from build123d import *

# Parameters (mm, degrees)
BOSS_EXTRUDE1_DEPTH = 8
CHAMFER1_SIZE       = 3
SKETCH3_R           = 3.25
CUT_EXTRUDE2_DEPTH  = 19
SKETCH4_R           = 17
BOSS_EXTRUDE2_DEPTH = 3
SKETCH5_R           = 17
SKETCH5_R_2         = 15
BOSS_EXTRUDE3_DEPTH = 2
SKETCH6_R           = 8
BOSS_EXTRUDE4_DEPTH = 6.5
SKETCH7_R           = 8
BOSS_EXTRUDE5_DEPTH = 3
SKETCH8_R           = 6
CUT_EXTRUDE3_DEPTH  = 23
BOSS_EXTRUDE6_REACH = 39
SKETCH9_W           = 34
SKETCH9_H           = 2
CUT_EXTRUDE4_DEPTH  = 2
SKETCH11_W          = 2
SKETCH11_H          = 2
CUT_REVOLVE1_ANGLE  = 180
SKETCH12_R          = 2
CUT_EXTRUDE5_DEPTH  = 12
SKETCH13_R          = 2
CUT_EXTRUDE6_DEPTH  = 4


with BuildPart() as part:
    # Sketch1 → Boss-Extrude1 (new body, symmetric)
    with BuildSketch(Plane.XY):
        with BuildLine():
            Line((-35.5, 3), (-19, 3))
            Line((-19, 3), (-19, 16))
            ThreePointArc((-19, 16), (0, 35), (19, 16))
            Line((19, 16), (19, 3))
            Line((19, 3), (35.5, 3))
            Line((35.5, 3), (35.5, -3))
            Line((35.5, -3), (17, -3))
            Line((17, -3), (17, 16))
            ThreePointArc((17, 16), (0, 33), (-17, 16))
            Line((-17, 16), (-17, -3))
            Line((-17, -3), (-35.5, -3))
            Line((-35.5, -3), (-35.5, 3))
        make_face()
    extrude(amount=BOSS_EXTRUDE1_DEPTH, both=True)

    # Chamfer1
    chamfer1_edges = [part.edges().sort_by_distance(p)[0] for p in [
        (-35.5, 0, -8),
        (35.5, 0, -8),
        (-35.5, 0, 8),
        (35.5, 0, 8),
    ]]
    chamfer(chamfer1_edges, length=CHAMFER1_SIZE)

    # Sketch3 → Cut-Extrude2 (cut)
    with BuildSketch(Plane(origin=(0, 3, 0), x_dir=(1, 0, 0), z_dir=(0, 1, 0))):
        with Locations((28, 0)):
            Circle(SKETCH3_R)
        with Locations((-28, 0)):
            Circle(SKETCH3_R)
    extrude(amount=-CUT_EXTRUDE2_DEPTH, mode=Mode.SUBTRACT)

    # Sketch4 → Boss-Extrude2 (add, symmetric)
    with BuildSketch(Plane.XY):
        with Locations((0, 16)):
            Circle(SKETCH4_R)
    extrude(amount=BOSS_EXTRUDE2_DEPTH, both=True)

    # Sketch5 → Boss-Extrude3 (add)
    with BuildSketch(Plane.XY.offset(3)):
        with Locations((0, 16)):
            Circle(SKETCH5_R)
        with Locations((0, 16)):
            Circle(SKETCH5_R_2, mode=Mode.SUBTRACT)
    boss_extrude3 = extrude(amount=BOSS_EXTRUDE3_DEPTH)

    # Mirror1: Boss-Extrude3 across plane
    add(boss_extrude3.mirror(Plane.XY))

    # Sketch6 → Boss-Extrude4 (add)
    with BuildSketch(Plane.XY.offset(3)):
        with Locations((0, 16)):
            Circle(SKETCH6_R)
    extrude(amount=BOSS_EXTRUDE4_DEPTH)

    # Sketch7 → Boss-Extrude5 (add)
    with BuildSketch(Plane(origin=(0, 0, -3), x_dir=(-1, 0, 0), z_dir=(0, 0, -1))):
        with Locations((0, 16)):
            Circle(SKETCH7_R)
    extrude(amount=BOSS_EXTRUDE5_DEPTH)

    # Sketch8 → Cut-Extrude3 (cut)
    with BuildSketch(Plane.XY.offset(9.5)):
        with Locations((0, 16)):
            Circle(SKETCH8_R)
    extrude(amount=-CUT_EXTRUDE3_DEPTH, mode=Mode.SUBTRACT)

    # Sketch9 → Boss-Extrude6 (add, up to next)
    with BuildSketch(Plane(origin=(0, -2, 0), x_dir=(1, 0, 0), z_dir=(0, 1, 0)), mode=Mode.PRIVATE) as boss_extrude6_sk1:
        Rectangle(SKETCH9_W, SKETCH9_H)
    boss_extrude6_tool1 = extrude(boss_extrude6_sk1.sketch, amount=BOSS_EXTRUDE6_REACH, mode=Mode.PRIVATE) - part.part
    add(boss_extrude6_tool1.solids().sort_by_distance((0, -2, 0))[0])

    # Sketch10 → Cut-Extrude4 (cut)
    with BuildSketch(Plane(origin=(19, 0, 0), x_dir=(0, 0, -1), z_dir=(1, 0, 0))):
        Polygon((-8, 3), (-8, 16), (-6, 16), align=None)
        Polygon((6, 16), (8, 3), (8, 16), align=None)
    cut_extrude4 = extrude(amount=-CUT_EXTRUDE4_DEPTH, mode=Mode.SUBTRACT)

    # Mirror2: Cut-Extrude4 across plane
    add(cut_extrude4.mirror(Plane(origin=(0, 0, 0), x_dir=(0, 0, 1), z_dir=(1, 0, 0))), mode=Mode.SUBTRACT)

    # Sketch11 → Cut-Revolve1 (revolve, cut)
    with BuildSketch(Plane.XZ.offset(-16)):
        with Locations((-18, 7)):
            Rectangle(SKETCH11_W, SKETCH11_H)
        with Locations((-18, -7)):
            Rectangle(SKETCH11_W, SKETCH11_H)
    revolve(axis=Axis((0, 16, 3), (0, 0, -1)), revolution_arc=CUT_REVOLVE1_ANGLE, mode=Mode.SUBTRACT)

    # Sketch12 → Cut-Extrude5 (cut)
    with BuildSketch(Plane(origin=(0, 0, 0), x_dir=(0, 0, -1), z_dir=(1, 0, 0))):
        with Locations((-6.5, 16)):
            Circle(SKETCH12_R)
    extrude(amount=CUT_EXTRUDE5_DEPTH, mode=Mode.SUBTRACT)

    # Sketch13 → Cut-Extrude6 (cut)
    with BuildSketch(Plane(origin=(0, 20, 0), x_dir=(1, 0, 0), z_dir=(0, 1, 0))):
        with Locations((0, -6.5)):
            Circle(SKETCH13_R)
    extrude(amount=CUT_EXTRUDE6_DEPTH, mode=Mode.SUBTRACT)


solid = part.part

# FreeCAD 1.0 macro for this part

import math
import FreeCAD as App
import Part
import Sketcher
from FreeCAD import Vector
Q = App.Units.Quantity


def edges_at(feature, points):
    """Names of the edges that pass closest to the given points."""
    edges = feature.Shape.Edges
    near = lambda p: min(range(len(edges)), key=lambda i: edges[i].distToShape(Part.Vertex(*p))[0])
    return sorted({f"Edge{near(p) + 1}" for p in points})

doc = App.newDocument("Part")
body = doc.addObject("PartDesign::Body", "Body")

sketch1 = body.newObject("Sketcher::SketchObject", "Sketch")
sketch1.AttachmentSupport = (doc.getObject("XY_Plane"), [""])
sketch1.MapMode = "FlatFace"
sketch1.addGeometry([
    Part.LineSegment(Vector(-19, 3, 0), Vector(-35.5, 3, 0)),
    Part.LineSegment(Vector(-35.5, 3, 0), Vector(-35.5, -3, 0)),
    Part.LineSegment(Vector(-35.5, -3, 0), Vector(-17, -3, 0)),
    Part.LineSegment(Vector(-17, -3, 0), Vector(-17, 16, 0)),
    Part.ArcOfCircle(Part.Circle(Vector(0, 16, 0), Vector(0, 0, 1), 17), math.radians(0), math.radians(180)),
    Part.LineSegment(Vector(17, 16, 0), Vector(17, -3, 0)),
    Part.LineSegment(Vector(17, -3, 0), Vector(35.5, -3, 0)),
    Part.LineSegment(Vector(35.5, -3, 0), Vector(35.5, 3, 0)),
    Part.LineSegment(Vector(35.5, 3, 0), Vector(19, 3, 0)),
    Part.LineSegment(Vector(19, 3, 0), Vector(19, 16, 0)),
    Part.ArcOfCircle(Part.Circle(Vector(0, 16, 0), Vector(0, 0, 1), 19), math.radians(0), math.radians(180)),
    Part.LineSegment(Vector(-19, 16, 0), Vector(-19, 3, 0)),
], False)
sketch1.addConstraint([
    Sketcher.Constraint("Coincident", 0, 2, 1, 1),
    Sketcher.Constraint("Coincident", 1, 2, 2, 1),
    Sketcher.Constraint("Coincident", 2, 2, 3, 1),
    Sketcher.Constraint("Tangent", 3, 2, 4, 2),
    Sketcher.Constraint("Tangent", 4, 1, 5, 1),
    Sketcher.Constraint("Coincident", 5, 2, 6, 1),
    Sketcher.Constraint("Coincident", 6, 2, 7, 1),
    Sketcher.Constraint("Coincident", 7, 2, 8, 1),
    Sketcher.Constraint("Coincident", 8, 2, 9, 1),
    Sketcher.Constraint("Tangent", 9, 2, 10, 1),
    Sketcher.Constraint("Tangent", 10, 2, 11, 1),
    Sketcher.Constraint("Coincident", 11, 2, 0, 1),
    Sketcher.Constraint("Horizontal", 0),
    Sketcher.Constraint("Vertical", 1),
    Sketcher.Constraint("Horizontal", 2),
    Sketcher.Constraint("Vertical", 3),
    Sketcher.Constraint("Vertical", 5),
    Sketcher.Constraint("Horizontal", 6),
    Sketcher.Constraint("Vertical", 7),
    Sketcher.Constraint("Horizontal", 8),
    Sketcher.Constraint("Vertical", 9),
    Sketcher.Constraint("Vertical", 11),
    Sketcher.Constraint("Coincident", 10, 3, 4, 3),
    Sketcher.Constraint("Symmetric", 0, 2, 6, 2, -1, 1),
    Sketcher.Constraint("Symmetric", 2, 2, 5, 2, -2),
    Sketcher.Constraint("Horizontal", 0, 2, 7, 2),
    Sketcher.Constraint("Radius", 4, Q("17 mm")),
    Sketcher.Constraint("Radius", 10, Q("19 mm")),
    Sketcher.Constraint("DistanceY", 1, 2, 1, 1, Q("6 mm")),
    Sketcher.Constraint("DistanceY", 3, 1, 3, 2, Q("19 mm")),
    Sketcher.Constraint("DistanceX", 0, 2, 0, 1, Q("16.5 mm")),
])
pad1 = body.newObject("PartDesign::Pad", "Pad")
pad1.Profile = sketch1
pad1.Length = 16
pad1.Midplane = True
doc.recompute()

chamfer = body.newObject("PartDesign::Chamfer", "Chamfer")
chamfer.Base = (pad1, edges_at(pad1, [
    (-35.5, 0, -8),
    (35.5, 0, -8),
    (-35.5, 0, 8),
    (35.5, 0, 8),
]))
chamfer.Size = 3

sketch2 = body.newObject("Sketcher::SketchObject", "Sketch001")
sketch2.AttachmentSupport = (doc.getObject("XZ_Plane"), [""])
sketch2.MapMode = "FlatFace"
sketch2.AttachmentOffset = App.Placement(Vector(0, 0, -3), App.Rotation())
sketch2.addGeometry([
    Part.Circle(Vector(28, 0, 0), Vector(0, 0, 1), 3.25),
    Part.Circle(Vector(-28, 0, 0), Vector(0, 0, 1), 3.25),
], False)
sketch2.addConstraint([
    Sketcher.Constraint("Equal", 0, 1),
    Sketcher.Constraint("Symmetric", 0, 3, 1, 3, -1, 1),
    Sketcher.Constraint("PointOnObject", 0, 3, -1),
    Sketcher.Constraint("Diameter", 0, Q("6.5 mm")),
    Sketcher.Constraint("DistanceX", -1, 1, 0, 3, Q("28 mm")),
])
pocket1 = body.newObject("PartDesign::Pocket", "Pocket")
pocket1.Profile = sketch2
pocket1.Length = 19
pocket1.Reversed = True

sketch3 = body.newObject("Sketcher::SketchObject", "Sketch002")
sketch3.AttachmentSupport = (doc.getObject("XY_Plane"), [""])
sketch3.MapMode = "FlatFace"
sketch3.addGeometry(Part.Circle(Vector(0, 16, 0), Vector(0, 0, 1), 17), False)
sketch3.addConstraint([
    Sketcher.Constraint("PointOnObject", 0, 3, -2),
    Sketcher.Constraint("Diameter", 0, Q("34 mm")),
    Sketcher.Constraint("DistanceY", -1, 1, 0, 3, Q("16 mm")),
])
pad2 = body.newObject("PartDesign::Pad", "Pad001")
pad2.Profile = sketch3
pad2.Length = 6
pad2.Midplane = True

sketch4 = body.newObject("Sketcher::SketchObject", "Sketch003")
sketch4.AttachmentSupport = (doc.getObject("XY_Plane"), [""])
sketch4.MapMode = "FlatFace"
sketch4.AttachmentOffset = App.Placement(Vector(0, 0, 3), App.Rotation())
sketch4.addGeometry([
    Part.Circle(Vector(0, 16, 0), Vector(0, 0, 1), 17),
    Part.Circle(Vector(0, 16, 0), Vector(0, 0, 1), 15),
], False)
sketch4.addConstraint([
    Sketcher.Constraint("Coincident", 1, 3, 0, 3),
    Sketcher.Constraint("PointOnObject", 0, 3, -2),
    Sketcher.Constraint("Diameter", 0, Q("34 mm")),
    Sketcher.Constraint("Diameter", 1, Q("30 mm")),
    Sketcher.Constraint("DistanceY", -1, 1, 0, 3, Q("16 mm")),
])
pad3 = body.newObject("PartDesign::Pad", "Pad002")
pad3.Profile = sketch4
pad3.Length = 2
doc.recompute()

mirrored = body.newObject("PartDesign::Mirrored", "Mirrored")
mirrored.Originals = [pad3]
mirrored.MirrorPlane = (doc.getObject("XY_Plane"), [""])
body.Tip = mirrored

sketch5 = body.newObject("Sketcher::SketchObject", "Sketch004")
sketch5.AttachmentSupport = (doc.getObject("XY_Plane"), [""])
sketch5.MapMode = "FlatFace"
sketch5.AttachmentOffset = App.Placement(Vector(0, 0, 3), App.Rotation())
sketch5.addGeometry(Part.Circle(Vector(0, 16, 0), Vector(0, 0, 1), 8), False)
sketch5.addConstraint([
    Sketcher.Constraint("PointOnObject", 0, 3, -2),
    Sketcher.Constraint("Diameter", 0, Q("16 mm")),
    Sketcher.Constraint("DistanceY", -1, 1, 0, 3, Q("16 mm")),
])
pad4 = body.newObject("PartDesign::Pad", "Pad003")
pad4.Profile = sketch5
pad4.Length = 6.5

sketch6 = body.newObject("Sketcher::SketchObject", "Sketch005")
sketch6.AttachmentSupport = (doc.getObject("XY_Plane"), [""])
sketch6.MapMode = "FlatFace"
sketch6.AttachmentOffset = App.Placement(Vector(0, 0, -3), App.Rotation())
sketch6.addGeometry(Part.Circle(Vector(0, 16, 0), Vector(0, 0, 1), 8), False)
sketch6.addConstraint([
    Sketcher.Constraint("PointOnObject", 0, 3, -2),
    Sketcher.Constraint("Diameter", 0, Q("16 mm")),
    Sketcher.Constraint("DistanceY", -1, 1, 0, 3, Q("16 mm")),
])
pad5 = body.newObject("PartDesign::Pad", "Pad004")
pad5.Profile = sketch6
pad5.Length = 3
pad5.Reversed = True

sketch7 = body.newObject("Sketcher::SketchObject", "Sketch006")
sketch7.AttachmentSupport = (doc.getObject("XY_Plane"), [""])
sketch7.MapMode = "FlatFace"
sketch7.AttachmentOffset = App.Placement(Vector(0, 0, 9.5), App.Rotation())
sketch7.addGeometry(Part.Circle(Vector(0, 16, 0), Vector(0, 0, 1), 6), False)
sketch7.addConstraint([
    Sketcher.Constraint("PointOnObject", 0, 3, -2),
    Sketcher.Constraint("Diameter", 0, Q("12 mm")),
    Sketcher.Constraint("DistanceY", -1, 1, 0, 3, Q("16 mm")),
])
pocket2 = body.newObject("PartDesign::Pocket", "Pocket001")
pocket2.Profile = sketch7
pocket2.Length = 23

sketch8 = body.newObject("Sketcher::SketchObject", "Sketch007")
sketch8.AttachmentSupport = (doc.getObject("XZ_Plane"), [""])
sketch8.MapMode = "FlatFace"
sketch8.AttachmentOffset = App.Placement(Vector(0, 0, 2), App.Rotation())
sketch8.addGeometry([
    Part.LineSegment(Vector(-17, -1, 0), Vector(-17, 1, 0)),
    Part.LineSegment(Vector(-17, 1, 0), Vector(17, 1, 0)),
    Part.LineSegment(Vector(17, 1, 0), Vector(17, -1, 0)),
    Part.LineSegment(Vector(17, -1, 0), Vector(-17, -1, 0)),
], False)
sketch8.addConstraint([
    Sketcher.Constraint("Coincident", 0, 2, 1, 1),
    Sketcher.Constraint("Coincident", 1, 2, 2, 1),
    Sketcher.Constraint("Coincident", 2, 2, 3, 1),
    Sketcher.Constraint("Coincident", 3, 2, 0, 1),
    Sketcher.Constraint("Vertical", 0),
    Sketcher.Constraint("Horizontal", 1),
    Sketcher.Constraint("Vertical", 2),
    Sketcher.Constraint("Horizontal", 3),
    Sketcher.Constraint("Symmetric", 0, 2, 2, 2, -1, 1),
    Sketcher.Constraint("DistanceX", 1, 1, 1, 2, Q("34 mm")),
    Sketcher.Constraint("DistanceY", 0, 1, 0, 2, Q("2 mm")),
])
pad6 = body.newObject("PartDesign::Pad", "Pad005")
pad6.Profile = sketch8
pad6.Type = "UpToFirst"
pad6.Reversed = True

sketch9 = body.newObject("Sketcher::SketchObject", "Sketch008")
sketch9.AttachmentSupport = (doc.getObject("YZ_Plane"), [""])
sketch9.MapMode = "FlatFace"
sketch9.AttachmentOffset = App.Placement(Vector(0, 0, 19), App.Rotation())
sketch9.addGeometry([
    Part.LineSegment(Vector(16, 8, 0), Vector(3, 8, 0)),
    Part.LineSegment(Vector(3, 8, 0), Vector(16, 6, 0)),
    Part.LineSegment(Vector(16, 6, 0), Vector(16, 8, 0)),
    Part.LineSegment(Vector(16, -6, 0), Vector(3, -8, 0)),
    Part.LineSegment(Vector(3, -8, 0), Vector(16, -8, 0)),
    Part.LineSegment(Vector(16, -8, 0), Vector(16, -6, 0)),
], False)
sketch9.addConstraint([
    Sketcher.Constraint("Coincident", 0, 2, 1, 1),
    Sketcher.Constraint("Coincident", 1, 2, 2, 1),
    Sketcher.Constraint("Coincident", 2, 2, 0, 1),
    Sketcher.Constraint("Coincident", 3, 2, 4, 1),
    Sketcher.Constraint("Coincident", 4, 2, 5, 1),
    Sketcher.Constraint("Coincident", 5, 2, 3, 1),
    Sketcher.Constraint("Horizontal", 0),
    Sketcher.Constraint("Vertical", 2),
    Sketcher.Constraint("Horizontal", 4),
    Sketcher.Constraint("Vertical", 5),
    Sketcher.Constraint("Symmetric", 0, 2, 3, 2, -1),
    Sketcher.Constraint("Symmetric", 1, 2, 5, 2, -1),
    Sketcher.Constraint("DistanceX", 0, 2, 0, 1, Q("13 mm")),
    Sketcher.Constraint("DistanceY", 2, 1, 2, 2, Q("2 mm")),
    Sketcher.Constraint("DistanceX", -1, 1, 0, 2, Q("3 mm")),
    Sketcher.Constraint("DistanceY", -1, 1, 0, 2, Q("8 mm")),
])
pocket3 = body.newObject("PartDesign::Pocket", "Pocket002")
pocket3.Profile = sketch9
pocket3.Length = 2
doc.recompute()

mirrored2 = body.newObject("PartDesign::Mirrored", "Mirrored001")
mirrored2.Originals = [pocket3]
mirrored2.MirrorPlane = (doc.getObject("YZ_Plane"), [""])
body.Tip = mirrored2

sketch10 = body.newObject("Sketcher::SketchObject", "Sketch009")
sketch10.AttachmentSupport = (doc.getObject("XZ_Plane"), [""])
sketch10.MapMode = "FlatFace"
sketch10.AttachmentOffset = App.Placement(Vector(0, 0, -16), App.Rotation())
sketch10.addGeometry([
    Part.LineSegment(Vector(-19, 8, 0), Vector(-19, 6, 0)),
    Part.LineSegment(Vector(-19, 6, 0), Vector(-17, 6, 0)),
    Part.LineSegment(Vector(-17, 6, 0), Vector(-17, 8, 0)),
    Part.LineSegment(Vector(-17, 8, 0), Vector(-19, 8, 0)),
    Part.LineSegment(Vector(-19, -6, 0), Vector(-19, -8, 0)),
    Part.LineSegment(Vector(-19, -8, 0), Vector(-17, -8, 0)),
    Part.LineSegment(Vector(-17, -8, 0), Vector(-17, -6, 0)),
    Part.LineSegment(Vector(-17, -6, 0), Vector(-19, -6, 0)),
], False)
sketch10.addConstraint([
    Sketcher.Constraint("Coincident", 0, 2, 1, 1),
    Sketcher.Constraint("Coincident", 1, 2, 2, 1),
    Sketcher.Constraint("Coincident", 2, 2, 3, 1),
    Sketcher.Constraint("Coincident", 3, 2, 0, 1),
    Sketcher.Constraint("Coincident", 4, 2, 5, 1),
    Sketcher.Constraint("Coincident", 5, 2, 6, 1),
    Sketcher.Constraint("Coincident", 6, 2, 7, 1),
    Sketcher.Constraint("Coincident", 7, 2, 4, 1),
    Sketcher.Constraint("Vertical", 0),
    Sketcher.Constraint("Horizontal", 1),
    Sketcher.Constraint("Vertical", 2),
    Sketcher.Constraint("Horizontal", 3),
    Sketcher.Constraint("Vertical", 4),
    Sketcher.Constraint("Horizontal", 5),
    Sketcher.Constraint("Vertical", 6),
    Sketcher.Constraint("Horizontal", 7),
    Sketcher.Constraint("Symmetric", 3, 2, 4, 2, -1),
    Sketcher.Constraint("Symmetric", 1, 2, 6, 2, -1),
    Sketcher.Constraint("Equal", 7, 0),
    Sketcher.Constraint("DistanceX", 1, 1, 1, 2, Q("2 mm")),
    Sketcher.Constraint("DistanceX", 0, 2, -1, 1, Q("19 mm")),
    Sketcher.Constraint("DistanceY", -1, 1, 0, 2, Q("6 mm")),
])
groove = body.newObject("PartDesign::Groove", "Groove")
groove.Profile = sketch10
groove.ReferenceAxis = (sketch10, ["V_Axis"])
groove.Angle = 180
groove.Reversed = True

sketch11 = body.newObject("Sketcher::SketchObject", "Sketch010")
sketch11.AttachmentSupport = (doc.getObject("YZ_Plane"), [""])
sketch11.MapMode = "FlatFace"
sketch11.addGeometry(Part.Circle(Vector(16, 6.5, 0), Vector(0, 0, 1), 2), False)
sketch11.addConstraint([
    Sketcher.Constraint("Diameter", 0, Q("4 mm")),
    Sketcher.Constraint("DistanceX", -1, 1, 0, 3, Q("16 mm")),
    Sketcher.Constraint("DistanceY", -1, 1, 0, 3, Q("6.5 mm")),
])
pocket4 = body.newObject("PartDesign::Pocket", "Pocket003")
pocket4.Profile = sketch11
pocket4.Length = 12
pocket4.Reversed = True

sketch12 = body.newObject("Sketcher::SketchObject", "Sketch011")
sketch12.AttachmentSupport = (doc.getObject("XZ_Plane"), [""])
sketch12.MapMode = "FlatFace"
sketch12.AttachmentOffset = App.Placement(Vector(0, 0, -20), App.Rotation())
sketch12.addGeometry(Part.Circle(Vector(0, 6.5, 0), Vector(0, 0, 1), 2), False)
sketch12.addConstraint([
    Sketcher.Constraint("PointOnObject", 0, 3, -2),
    Sketcher.Constraint("Diameter", 0, Q("4 mm")),
    Sketcher.Constraint("DistanceY", -1, 1, 0, 3, Q("6.5 mm")),
])
pocket5 = body.newObject("PartDesign::Pocket", "Pocket004")
pocket5.Profile = sketch12
pocket5.Length = 4

doc.recompute()
